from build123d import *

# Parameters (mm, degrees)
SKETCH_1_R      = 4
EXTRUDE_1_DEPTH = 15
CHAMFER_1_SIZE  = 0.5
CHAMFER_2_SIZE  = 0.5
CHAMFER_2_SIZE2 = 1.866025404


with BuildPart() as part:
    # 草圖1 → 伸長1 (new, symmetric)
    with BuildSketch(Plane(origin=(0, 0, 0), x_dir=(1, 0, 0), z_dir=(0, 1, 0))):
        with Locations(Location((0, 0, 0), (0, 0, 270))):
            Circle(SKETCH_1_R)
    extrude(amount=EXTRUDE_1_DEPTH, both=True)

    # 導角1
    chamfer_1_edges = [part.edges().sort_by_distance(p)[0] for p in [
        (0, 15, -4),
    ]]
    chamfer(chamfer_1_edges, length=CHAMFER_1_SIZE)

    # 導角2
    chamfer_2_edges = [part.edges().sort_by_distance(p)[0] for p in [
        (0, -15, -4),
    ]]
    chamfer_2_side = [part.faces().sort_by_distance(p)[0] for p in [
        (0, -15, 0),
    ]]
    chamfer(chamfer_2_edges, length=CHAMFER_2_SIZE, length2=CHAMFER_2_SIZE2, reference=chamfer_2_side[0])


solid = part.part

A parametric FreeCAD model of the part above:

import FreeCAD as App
import Part
import Sketcher

V = App.Vector


def edges_at(feature, points):
    """Names of the edges that pass closest to the given points."""
    edges = feature.Shape.Edges
    near = lambda p: min(range(len(edges)), key=lambda i: edges[i].distToShape(Part.Vertex(*p))[0])
    return sorted({f"Edge{near(p) + 1}" for p in points})

doc = App.newDocument("Part")
body = doc.addObject("PartDesign::Body", "Body")

sketch1 = body.newObject("Sketcher::SketchObject", "Sketch")
sketch1.AttachmentSupport = (doc.getObject("XZ_Plane"), [""])
sketch1.MapMode = "FlatFace"
sketch1.addGeometry(Part.Circle(V(0, 0, 0), V(0, 0, 1), 4), False)
sketch1.addConstraint(Sketcher.Constraint("Coincident", 0, 3, -1, 1))
sketch1.addConstraint(Sketcher.Constraint("Diameter", 0, 8.0))
pad1 = body.newObject("PartDesign::Pad", "Pad")
pad1.Profile = sketch1
pad1.Length = 30
pad1.Midplane = True
doc.recompute()

chamfer = body.newObject("PartDesign::Chamfer", "Chamfer")
chamfer.Base = (pad1, edges_at(pad1, [(0, 15, -4)]))
chamfer.Size = 0.5
doc.recompute()

chamfer2 = body.newObject("PartDesign::Chamfer", "Chamfer001")
chamfer2.Base = (chamfer, edges_at(chamfer, [(0, -15, -4)]))
chamfer2.ChamferType = "Two distances"
chamfer2.Size = 0.5
chamfer2.Size2 = 1.866025
chamfer2.FlipDirection = True

doc.recompute()
